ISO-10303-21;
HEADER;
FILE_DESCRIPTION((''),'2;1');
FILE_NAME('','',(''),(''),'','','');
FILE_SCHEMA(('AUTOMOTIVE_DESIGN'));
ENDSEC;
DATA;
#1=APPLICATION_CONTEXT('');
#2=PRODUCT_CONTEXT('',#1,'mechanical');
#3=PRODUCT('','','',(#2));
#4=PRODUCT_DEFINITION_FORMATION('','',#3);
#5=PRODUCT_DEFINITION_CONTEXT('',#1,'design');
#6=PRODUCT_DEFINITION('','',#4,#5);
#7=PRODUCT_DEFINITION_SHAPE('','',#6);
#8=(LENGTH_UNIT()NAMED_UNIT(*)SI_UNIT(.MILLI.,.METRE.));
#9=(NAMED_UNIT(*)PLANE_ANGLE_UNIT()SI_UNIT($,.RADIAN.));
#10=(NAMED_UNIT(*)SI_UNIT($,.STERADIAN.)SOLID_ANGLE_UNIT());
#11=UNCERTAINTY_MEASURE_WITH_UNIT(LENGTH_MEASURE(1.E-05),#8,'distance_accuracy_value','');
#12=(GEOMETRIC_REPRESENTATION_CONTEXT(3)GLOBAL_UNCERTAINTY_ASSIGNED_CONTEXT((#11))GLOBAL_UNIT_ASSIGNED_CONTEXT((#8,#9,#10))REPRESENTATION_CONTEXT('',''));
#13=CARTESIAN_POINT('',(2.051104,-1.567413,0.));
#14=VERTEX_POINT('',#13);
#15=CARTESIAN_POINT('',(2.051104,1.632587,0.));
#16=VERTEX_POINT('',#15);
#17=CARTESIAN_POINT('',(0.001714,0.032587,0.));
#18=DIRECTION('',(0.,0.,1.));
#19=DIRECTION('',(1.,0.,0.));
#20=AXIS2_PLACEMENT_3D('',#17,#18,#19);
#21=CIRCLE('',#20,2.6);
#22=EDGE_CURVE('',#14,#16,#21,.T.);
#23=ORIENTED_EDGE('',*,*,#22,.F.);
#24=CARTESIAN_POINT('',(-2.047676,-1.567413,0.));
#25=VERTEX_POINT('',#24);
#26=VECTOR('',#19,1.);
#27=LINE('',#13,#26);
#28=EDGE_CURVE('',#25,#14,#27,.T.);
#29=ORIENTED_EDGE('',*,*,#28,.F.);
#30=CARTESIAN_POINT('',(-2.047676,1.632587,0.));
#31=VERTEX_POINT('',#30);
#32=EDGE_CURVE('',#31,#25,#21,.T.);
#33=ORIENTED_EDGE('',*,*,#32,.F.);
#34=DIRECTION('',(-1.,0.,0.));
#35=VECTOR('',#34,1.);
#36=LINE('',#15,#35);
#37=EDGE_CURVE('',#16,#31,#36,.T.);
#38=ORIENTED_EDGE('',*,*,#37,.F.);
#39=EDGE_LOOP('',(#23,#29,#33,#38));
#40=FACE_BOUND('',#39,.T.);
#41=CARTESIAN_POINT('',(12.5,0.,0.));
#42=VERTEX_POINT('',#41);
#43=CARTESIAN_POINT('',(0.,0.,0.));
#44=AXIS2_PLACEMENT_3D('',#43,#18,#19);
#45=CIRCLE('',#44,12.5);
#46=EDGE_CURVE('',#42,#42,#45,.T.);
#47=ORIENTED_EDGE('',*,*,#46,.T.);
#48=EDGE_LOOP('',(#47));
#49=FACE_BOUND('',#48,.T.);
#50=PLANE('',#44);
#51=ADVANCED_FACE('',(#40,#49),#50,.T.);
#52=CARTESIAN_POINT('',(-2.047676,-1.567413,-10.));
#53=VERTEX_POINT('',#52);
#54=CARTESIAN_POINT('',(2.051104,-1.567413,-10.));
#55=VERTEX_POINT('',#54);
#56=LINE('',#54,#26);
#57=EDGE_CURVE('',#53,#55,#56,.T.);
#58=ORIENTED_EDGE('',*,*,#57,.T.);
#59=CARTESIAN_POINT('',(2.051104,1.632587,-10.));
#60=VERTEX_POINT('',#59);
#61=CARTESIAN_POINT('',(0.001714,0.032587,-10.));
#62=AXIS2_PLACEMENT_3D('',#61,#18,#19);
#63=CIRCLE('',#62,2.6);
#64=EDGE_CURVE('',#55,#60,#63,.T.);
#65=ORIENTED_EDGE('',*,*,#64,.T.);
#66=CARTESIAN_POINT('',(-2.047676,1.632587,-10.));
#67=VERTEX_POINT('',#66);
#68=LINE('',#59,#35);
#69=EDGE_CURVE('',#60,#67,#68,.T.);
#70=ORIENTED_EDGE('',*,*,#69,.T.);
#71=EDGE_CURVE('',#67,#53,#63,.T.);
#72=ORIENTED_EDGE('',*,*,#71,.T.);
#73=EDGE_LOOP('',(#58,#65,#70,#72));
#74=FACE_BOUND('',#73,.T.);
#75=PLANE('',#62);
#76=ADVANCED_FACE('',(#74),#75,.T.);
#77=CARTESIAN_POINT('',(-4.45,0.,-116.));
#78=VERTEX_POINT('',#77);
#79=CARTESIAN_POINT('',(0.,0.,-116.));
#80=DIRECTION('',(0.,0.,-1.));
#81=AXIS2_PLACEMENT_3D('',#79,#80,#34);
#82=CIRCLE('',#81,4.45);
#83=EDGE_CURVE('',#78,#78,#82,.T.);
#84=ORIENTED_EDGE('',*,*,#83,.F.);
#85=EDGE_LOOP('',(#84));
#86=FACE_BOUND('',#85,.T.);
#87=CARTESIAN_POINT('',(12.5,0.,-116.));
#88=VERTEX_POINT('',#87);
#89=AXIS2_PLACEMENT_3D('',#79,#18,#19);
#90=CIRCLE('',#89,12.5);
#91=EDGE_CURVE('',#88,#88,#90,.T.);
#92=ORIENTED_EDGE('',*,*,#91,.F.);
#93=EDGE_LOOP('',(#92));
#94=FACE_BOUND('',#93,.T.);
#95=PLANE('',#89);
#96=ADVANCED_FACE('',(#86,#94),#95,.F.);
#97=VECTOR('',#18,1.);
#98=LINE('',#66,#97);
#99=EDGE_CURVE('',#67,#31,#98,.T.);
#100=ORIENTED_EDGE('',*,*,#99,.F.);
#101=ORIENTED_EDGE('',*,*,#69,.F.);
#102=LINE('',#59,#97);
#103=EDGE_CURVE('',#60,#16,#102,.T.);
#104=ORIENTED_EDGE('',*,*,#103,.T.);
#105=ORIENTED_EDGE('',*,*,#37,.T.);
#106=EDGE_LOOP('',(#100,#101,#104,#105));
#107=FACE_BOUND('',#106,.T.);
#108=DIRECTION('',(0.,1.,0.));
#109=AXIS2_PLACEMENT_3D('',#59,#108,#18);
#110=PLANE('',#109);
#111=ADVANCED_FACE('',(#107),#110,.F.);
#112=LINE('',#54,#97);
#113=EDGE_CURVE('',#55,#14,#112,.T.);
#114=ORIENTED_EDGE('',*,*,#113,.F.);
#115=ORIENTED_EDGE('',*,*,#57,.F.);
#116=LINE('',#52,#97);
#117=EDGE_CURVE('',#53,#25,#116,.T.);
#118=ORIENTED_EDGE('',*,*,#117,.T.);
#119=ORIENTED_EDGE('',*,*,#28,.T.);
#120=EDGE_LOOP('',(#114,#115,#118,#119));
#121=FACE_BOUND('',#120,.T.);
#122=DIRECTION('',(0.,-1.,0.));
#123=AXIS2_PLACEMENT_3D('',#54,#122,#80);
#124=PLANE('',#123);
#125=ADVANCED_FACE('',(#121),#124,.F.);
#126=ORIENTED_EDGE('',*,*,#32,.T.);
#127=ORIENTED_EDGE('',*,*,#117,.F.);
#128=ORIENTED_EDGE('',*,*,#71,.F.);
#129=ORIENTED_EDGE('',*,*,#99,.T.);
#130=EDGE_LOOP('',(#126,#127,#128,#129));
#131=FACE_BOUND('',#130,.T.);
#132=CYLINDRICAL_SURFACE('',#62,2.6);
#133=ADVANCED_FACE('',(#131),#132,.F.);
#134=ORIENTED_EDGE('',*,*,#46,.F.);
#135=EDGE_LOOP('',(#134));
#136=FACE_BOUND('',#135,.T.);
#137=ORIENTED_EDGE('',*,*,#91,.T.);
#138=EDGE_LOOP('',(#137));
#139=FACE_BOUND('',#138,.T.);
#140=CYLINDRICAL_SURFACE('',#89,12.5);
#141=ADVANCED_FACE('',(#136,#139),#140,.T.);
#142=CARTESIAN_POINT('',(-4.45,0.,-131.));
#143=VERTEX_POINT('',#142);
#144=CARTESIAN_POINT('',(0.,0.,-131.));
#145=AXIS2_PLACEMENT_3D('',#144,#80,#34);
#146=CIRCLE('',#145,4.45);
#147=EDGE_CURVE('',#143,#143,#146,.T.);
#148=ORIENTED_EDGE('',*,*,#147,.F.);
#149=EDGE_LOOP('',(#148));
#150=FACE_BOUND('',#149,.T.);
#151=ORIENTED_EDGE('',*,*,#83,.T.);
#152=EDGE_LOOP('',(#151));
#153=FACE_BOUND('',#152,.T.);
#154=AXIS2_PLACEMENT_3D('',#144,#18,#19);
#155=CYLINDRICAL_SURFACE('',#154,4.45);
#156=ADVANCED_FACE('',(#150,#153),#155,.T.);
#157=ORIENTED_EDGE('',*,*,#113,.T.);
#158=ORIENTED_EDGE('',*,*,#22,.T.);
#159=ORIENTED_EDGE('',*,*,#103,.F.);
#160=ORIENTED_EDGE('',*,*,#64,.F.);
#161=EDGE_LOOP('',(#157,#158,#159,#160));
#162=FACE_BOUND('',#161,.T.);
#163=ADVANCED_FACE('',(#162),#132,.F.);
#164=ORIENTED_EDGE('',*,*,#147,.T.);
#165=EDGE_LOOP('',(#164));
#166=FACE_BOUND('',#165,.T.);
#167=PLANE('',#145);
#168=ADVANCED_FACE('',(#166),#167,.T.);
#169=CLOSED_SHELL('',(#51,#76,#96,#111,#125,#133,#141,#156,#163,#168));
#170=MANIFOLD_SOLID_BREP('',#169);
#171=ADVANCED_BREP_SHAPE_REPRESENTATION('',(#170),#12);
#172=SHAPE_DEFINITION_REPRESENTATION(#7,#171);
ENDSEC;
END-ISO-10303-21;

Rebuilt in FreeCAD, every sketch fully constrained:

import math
import FreeCAD as App
import Part
import Sketcher

V = App.Vector

doc = App.newDocument("Part")
body = doc.addObject("PartDesign::Body", "Body")

# Sketch on XY plane
sketch1 = doc.addObject("Sketcher::SketchObject", "Sketch")
body.addObject(sketch1)
sketch1.AttachmentSupport = (doc.XY_Plane, [""])
sketch1.MapMode = "FlatFace"
sketch1.addGeometry(Part.Circle(V(0, 0, 0), V(0, 0, 1), 12.5), False)
sketch1.addConstraint(Sketcher.Constraint("Coincident", 0, 3, -1, 1))
sketch1.addConstraint(Sketcher.Constraint("Diameter", 0, 25.0))
pad1 = doc.addObject("PartDesign::Pad", "Pad")
body.addObject(pad1)
pad1.Profile = sketch1
pad1.Length = 116
pad1.Reversed = True

# Sketch on XY plane
sketch2 = doc.addObject("Sketcher::SketchObject", "Sketch001")
body.addObject(sketch2)
sketch2.AttachmentSupport = (doc.XY_Plane, [""])
sketch2.MapMode = "FlatFace"
sketch2.AttachmentOffset = App.Placement(V(0, 0, -116), App.Rotation())
sketch2.addGeometry(Part.Circle(V(0, 0, 0), V(0, 0, 1), 4.45), False)
sketch2.addConstraint(Sketcher.Constraint("Coincident", 0, 3, -1, 1))
sketch2.addConstraint(Sketcher.Constraint("Diameter", 0, 8.9))
pad2 = doc.addObject("PartDesign::Pad", "Pad001")
body.addObject(pad2)
pad2.Profile = sketch2
pad2.Length = 15
pad2.Reversed = True

# Sketch on XY plane
sketch3 = doc.addObject("Sketcher::SketchObject", "Sketch002")
body.addObject(sketch3)
sketch3.AttachmentSupport = (doc.XY_Plane, [""])
sketch3.MapMode = "FlatFace"
sketch3.addGeometry(Part.LineSegment(V(-2.047676, -1.567413, 0), V(2.051104, -1.567413, 0)), False)
sketch3.addGeometry(Part.ArcOfCircle(Part.Circle(V(0.001714, 0.032587, 0), V(0, 0, 1), 2.6), math.radians(-37.979872), math.radians(37.979872)), False)
sketch3.addGeometry(Part.LineSegment(V(2.051104, 1.632587, 0), V(-2.047676, 1.632587, 0)), False)
sketch3.addGeometry(Part.ArcOfCircle(Part.Circle(V(0.001714, 0.032587, 0), V(0, 0, 1), 2.6), math.radians(142.020128), math.radians(217.979872)), False)
sketch3.addConstraint(Sketcher.Constraint("Coincident", 0, 2, 1, 1))
sketch3.addConstraint(Sketcher.Constraint("Coincident", 1, 2, 2, 1))
sketch3.addConstraint(Sketcher.Constraint("Coincident", 2, 2, 3, 1))
sketch3.addConstraint(Sketcher.Constraint("Coincident", 3, 2, 0, 1))
sketch3.addConstraint(Sketcher.Constraint("Horizontal", 0))
sketch3.addConstraint(Sketcher.Constraint("Horizontal", 2))
sketch3.addConstraint(Sketcher.Constraint("Coincident", 3, 3, 1, 3))
sketch3.addConstraint(Sketcher.Constraint("Equal", 1, 3))
sketch3.addConstraint(Sketcher.Constraint("Vertical", 0, 2, 1, 2))
sketch3.addConstraint(Sketcher.Constraint("Radius", 1, 2.6))
sketch3.addConstraint(Sketcher.Constraint("DistanceY", 0, 2, 1, 3, 1.6))
sketch3.addConstraint(Sketcher.Constraint("DistanceX", -1, 1, 1, 3, 0.001714))
sketch3.addConstraint(Sketcher.Constraint("DistanceY", -1, 1, 1, 3, 0.032587))
pocket1 = doc.addObject("PartDesign::Pocket", "Pocket")
body.addObject(pocket1)
pocket1.Profile = sketch3
pocket1.Length = 10

doc.recompute()
